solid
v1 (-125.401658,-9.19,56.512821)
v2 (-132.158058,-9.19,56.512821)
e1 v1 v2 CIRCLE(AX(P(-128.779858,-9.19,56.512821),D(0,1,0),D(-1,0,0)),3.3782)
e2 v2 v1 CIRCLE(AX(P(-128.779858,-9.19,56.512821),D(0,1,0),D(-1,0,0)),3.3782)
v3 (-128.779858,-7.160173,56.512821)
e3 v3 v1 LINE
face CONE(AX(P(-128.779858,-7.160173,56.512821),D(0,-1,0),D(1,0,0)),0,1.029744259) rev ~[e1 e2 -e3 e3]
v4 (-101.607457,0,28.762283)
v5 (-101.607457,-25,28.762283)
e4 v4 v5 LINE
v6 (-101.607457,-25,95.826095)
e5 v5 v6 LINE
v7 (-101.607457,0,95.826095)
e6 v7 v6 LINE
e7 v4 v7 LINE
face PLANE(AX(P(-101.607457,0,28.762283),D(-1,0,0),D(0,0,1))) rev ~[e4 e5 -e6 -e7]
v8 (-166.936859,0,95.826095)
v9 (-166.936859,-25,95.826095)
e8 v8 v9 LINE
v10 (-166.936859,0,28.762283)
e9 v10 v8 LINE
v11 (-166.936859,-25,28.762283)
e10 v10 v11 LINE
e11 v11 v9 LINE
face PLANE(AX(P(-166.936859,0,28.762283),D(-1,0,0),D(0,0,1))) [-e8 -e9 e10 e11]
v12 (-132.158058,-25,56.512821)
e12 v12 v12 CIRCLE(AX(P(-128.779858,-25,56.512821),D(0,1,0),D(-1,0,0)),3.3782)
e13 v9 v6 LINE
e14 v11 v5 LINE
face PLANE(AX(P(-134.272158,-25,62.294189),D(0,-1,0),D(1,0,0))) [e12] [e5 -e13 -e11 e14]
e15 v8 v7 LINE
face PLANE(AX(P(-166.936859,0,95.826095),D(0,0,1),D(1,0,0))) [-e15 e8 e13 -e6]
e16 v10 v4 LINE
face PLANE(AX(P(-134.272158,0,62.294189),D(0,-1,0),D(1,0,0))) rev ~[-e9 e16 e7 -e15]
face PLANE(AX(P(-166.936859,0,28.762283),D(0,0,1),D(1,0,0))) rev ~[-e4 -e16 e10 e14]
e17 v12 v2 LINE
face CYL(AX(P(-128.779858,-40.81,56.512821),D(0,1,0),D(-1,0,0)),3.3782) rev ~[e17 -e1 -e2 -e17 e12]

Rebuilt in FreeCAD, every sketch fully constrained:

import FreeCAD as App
import Part
import Sketcher

V = App.Vector
Q = App.Units.Quantity

doc = App.newDocument("Part")
params = doc.addObject("Spreadsheet::Sheet", "Params")
for row, (alias, value) in enumerate([
    ("pad1_length", "25 mm"),
    ("hole_diameter", "6.7564 mm"),
    ("hole_depth", "15.81 mm"),
], start=1):
    params.set(f"A{row}", alias)
    params.set(f"B{row}", "=" + value)
    params.setAlias(f"B{row}", alias)

body = doc.addObject("PartDesign::Body", "Body")

sketch1 = doc.addObject("Sketcher::SketchObject", "Sketch")
body.addObject(sketch1)
sketch1.AttachmentSupport = (doc.XZ_Plane, [""])
sketch1.MapMode = "FlatFace"
sketch1.addGeometry(Part.LineSegment(V(-167, 96, 0), V(-167, 29, 0)), False)
sketch1.addGeometry(Part.LineSegment(V(-167, 29, 0), V(-102, 29, 0)), False)
sketch1.addGeometry(Part.LineSegment(V(-102, 29, 0), V(-102, 96, 0)), False)
sketch1.addGeometry(Part.LineSegment(V(-102, 96, 0), V(-167, 96, 0)), False)
sketch1.addConstraint(Sketcher.Constraint("Coincident", 0, 2, 1, 1))
sketch1.addConstraint(Sketcher.Constraint("Coincident", 1, 2, 2, 1))
sketch1.addConstraint(Sketcher.Constraint("Coincident", 2, 2, 3, 1))
sketch1.addConstraint(Sketcher.Constraint("Coincident", 3, 2, 0, 1))
sketch1.addConstraint(Sketcher.Constraint("Vertical", 0))
sketch1.addConstraint(Sketcher.Constraint("Horizontal", 1))
sketch1.addConstraint(Sketcher.Constraint("Vertical", 2))
sketch1.addConstraint(Sketcher.Constraint("Horizontal", 3))
sketch1.addConstraint(Sketcher.Constraint("DistanceX", 1, 1, 1, 2, Q("65.329403 mm")))
sketch1.addConstraint(Sketcher.Constraint("DistanceY", 0, 2, 0, 1, Q("67.063812 mm")))
sketch1.addConstraint(Sketcher.Constraint("DistanceX", 0, 2, -1, 1, Q("166.936859 mm")))
sketch1.addConstraint(Sketcher.Constraint("DistanceY", -1, 1, 0, 2, Q("28.762283 mm")))
pad1 = doc.addObject("PartDesign::Pad", "Pad")
body.addObject(pad1)
pad1.Profile = sketch1
pad1.setExpression("Length", "Params.pad1_length")

sketch2 = doc.addObject("Sketcher::SketchObject", "Sketch001")
body.addObject(sketch2)
sketch2.AttachmentSupport = (doc.XZ_Plane, [""])
sketch2.MapMode = "FlatFace"
sketch2.AttachmentOffset = App.Placement(V(0, 0, 25), App.Rotation())
sketch2.addGeometry(Part.Circle(V(-128.8, 56.5, 0), V(0, 0, 1), 3.4), False)
sketch2.addConstraint(Sketcher.Constraint("Diameter", 0, Q("6.7564 mm")))
sketch2.addConstraint(Sketcher.Constraint("DistanceX", 0, 3, -1, 1, Q("128.779858 mm")))
sketch2.addConstraint(Sketcher.Constraint("DistanceY", -1, 1, 0, 3, Q("56.512821 mm")))
doc.recompute()
hole = doc.addObject("PartDesign::Hole", "Hole")
body.addObject(hole)
hole.Profile = sketch2
hole.ThreadType = "None"
hole.setExpression("Diameter", "Params.hole_diameter")
hole.DepthType = "Dimension"
hole.setExpression("Depth", "Params.hole_depth")
hole.DrillPoint = "Angled"
hole.DrillPointAngle = 118

doc.recompute()
